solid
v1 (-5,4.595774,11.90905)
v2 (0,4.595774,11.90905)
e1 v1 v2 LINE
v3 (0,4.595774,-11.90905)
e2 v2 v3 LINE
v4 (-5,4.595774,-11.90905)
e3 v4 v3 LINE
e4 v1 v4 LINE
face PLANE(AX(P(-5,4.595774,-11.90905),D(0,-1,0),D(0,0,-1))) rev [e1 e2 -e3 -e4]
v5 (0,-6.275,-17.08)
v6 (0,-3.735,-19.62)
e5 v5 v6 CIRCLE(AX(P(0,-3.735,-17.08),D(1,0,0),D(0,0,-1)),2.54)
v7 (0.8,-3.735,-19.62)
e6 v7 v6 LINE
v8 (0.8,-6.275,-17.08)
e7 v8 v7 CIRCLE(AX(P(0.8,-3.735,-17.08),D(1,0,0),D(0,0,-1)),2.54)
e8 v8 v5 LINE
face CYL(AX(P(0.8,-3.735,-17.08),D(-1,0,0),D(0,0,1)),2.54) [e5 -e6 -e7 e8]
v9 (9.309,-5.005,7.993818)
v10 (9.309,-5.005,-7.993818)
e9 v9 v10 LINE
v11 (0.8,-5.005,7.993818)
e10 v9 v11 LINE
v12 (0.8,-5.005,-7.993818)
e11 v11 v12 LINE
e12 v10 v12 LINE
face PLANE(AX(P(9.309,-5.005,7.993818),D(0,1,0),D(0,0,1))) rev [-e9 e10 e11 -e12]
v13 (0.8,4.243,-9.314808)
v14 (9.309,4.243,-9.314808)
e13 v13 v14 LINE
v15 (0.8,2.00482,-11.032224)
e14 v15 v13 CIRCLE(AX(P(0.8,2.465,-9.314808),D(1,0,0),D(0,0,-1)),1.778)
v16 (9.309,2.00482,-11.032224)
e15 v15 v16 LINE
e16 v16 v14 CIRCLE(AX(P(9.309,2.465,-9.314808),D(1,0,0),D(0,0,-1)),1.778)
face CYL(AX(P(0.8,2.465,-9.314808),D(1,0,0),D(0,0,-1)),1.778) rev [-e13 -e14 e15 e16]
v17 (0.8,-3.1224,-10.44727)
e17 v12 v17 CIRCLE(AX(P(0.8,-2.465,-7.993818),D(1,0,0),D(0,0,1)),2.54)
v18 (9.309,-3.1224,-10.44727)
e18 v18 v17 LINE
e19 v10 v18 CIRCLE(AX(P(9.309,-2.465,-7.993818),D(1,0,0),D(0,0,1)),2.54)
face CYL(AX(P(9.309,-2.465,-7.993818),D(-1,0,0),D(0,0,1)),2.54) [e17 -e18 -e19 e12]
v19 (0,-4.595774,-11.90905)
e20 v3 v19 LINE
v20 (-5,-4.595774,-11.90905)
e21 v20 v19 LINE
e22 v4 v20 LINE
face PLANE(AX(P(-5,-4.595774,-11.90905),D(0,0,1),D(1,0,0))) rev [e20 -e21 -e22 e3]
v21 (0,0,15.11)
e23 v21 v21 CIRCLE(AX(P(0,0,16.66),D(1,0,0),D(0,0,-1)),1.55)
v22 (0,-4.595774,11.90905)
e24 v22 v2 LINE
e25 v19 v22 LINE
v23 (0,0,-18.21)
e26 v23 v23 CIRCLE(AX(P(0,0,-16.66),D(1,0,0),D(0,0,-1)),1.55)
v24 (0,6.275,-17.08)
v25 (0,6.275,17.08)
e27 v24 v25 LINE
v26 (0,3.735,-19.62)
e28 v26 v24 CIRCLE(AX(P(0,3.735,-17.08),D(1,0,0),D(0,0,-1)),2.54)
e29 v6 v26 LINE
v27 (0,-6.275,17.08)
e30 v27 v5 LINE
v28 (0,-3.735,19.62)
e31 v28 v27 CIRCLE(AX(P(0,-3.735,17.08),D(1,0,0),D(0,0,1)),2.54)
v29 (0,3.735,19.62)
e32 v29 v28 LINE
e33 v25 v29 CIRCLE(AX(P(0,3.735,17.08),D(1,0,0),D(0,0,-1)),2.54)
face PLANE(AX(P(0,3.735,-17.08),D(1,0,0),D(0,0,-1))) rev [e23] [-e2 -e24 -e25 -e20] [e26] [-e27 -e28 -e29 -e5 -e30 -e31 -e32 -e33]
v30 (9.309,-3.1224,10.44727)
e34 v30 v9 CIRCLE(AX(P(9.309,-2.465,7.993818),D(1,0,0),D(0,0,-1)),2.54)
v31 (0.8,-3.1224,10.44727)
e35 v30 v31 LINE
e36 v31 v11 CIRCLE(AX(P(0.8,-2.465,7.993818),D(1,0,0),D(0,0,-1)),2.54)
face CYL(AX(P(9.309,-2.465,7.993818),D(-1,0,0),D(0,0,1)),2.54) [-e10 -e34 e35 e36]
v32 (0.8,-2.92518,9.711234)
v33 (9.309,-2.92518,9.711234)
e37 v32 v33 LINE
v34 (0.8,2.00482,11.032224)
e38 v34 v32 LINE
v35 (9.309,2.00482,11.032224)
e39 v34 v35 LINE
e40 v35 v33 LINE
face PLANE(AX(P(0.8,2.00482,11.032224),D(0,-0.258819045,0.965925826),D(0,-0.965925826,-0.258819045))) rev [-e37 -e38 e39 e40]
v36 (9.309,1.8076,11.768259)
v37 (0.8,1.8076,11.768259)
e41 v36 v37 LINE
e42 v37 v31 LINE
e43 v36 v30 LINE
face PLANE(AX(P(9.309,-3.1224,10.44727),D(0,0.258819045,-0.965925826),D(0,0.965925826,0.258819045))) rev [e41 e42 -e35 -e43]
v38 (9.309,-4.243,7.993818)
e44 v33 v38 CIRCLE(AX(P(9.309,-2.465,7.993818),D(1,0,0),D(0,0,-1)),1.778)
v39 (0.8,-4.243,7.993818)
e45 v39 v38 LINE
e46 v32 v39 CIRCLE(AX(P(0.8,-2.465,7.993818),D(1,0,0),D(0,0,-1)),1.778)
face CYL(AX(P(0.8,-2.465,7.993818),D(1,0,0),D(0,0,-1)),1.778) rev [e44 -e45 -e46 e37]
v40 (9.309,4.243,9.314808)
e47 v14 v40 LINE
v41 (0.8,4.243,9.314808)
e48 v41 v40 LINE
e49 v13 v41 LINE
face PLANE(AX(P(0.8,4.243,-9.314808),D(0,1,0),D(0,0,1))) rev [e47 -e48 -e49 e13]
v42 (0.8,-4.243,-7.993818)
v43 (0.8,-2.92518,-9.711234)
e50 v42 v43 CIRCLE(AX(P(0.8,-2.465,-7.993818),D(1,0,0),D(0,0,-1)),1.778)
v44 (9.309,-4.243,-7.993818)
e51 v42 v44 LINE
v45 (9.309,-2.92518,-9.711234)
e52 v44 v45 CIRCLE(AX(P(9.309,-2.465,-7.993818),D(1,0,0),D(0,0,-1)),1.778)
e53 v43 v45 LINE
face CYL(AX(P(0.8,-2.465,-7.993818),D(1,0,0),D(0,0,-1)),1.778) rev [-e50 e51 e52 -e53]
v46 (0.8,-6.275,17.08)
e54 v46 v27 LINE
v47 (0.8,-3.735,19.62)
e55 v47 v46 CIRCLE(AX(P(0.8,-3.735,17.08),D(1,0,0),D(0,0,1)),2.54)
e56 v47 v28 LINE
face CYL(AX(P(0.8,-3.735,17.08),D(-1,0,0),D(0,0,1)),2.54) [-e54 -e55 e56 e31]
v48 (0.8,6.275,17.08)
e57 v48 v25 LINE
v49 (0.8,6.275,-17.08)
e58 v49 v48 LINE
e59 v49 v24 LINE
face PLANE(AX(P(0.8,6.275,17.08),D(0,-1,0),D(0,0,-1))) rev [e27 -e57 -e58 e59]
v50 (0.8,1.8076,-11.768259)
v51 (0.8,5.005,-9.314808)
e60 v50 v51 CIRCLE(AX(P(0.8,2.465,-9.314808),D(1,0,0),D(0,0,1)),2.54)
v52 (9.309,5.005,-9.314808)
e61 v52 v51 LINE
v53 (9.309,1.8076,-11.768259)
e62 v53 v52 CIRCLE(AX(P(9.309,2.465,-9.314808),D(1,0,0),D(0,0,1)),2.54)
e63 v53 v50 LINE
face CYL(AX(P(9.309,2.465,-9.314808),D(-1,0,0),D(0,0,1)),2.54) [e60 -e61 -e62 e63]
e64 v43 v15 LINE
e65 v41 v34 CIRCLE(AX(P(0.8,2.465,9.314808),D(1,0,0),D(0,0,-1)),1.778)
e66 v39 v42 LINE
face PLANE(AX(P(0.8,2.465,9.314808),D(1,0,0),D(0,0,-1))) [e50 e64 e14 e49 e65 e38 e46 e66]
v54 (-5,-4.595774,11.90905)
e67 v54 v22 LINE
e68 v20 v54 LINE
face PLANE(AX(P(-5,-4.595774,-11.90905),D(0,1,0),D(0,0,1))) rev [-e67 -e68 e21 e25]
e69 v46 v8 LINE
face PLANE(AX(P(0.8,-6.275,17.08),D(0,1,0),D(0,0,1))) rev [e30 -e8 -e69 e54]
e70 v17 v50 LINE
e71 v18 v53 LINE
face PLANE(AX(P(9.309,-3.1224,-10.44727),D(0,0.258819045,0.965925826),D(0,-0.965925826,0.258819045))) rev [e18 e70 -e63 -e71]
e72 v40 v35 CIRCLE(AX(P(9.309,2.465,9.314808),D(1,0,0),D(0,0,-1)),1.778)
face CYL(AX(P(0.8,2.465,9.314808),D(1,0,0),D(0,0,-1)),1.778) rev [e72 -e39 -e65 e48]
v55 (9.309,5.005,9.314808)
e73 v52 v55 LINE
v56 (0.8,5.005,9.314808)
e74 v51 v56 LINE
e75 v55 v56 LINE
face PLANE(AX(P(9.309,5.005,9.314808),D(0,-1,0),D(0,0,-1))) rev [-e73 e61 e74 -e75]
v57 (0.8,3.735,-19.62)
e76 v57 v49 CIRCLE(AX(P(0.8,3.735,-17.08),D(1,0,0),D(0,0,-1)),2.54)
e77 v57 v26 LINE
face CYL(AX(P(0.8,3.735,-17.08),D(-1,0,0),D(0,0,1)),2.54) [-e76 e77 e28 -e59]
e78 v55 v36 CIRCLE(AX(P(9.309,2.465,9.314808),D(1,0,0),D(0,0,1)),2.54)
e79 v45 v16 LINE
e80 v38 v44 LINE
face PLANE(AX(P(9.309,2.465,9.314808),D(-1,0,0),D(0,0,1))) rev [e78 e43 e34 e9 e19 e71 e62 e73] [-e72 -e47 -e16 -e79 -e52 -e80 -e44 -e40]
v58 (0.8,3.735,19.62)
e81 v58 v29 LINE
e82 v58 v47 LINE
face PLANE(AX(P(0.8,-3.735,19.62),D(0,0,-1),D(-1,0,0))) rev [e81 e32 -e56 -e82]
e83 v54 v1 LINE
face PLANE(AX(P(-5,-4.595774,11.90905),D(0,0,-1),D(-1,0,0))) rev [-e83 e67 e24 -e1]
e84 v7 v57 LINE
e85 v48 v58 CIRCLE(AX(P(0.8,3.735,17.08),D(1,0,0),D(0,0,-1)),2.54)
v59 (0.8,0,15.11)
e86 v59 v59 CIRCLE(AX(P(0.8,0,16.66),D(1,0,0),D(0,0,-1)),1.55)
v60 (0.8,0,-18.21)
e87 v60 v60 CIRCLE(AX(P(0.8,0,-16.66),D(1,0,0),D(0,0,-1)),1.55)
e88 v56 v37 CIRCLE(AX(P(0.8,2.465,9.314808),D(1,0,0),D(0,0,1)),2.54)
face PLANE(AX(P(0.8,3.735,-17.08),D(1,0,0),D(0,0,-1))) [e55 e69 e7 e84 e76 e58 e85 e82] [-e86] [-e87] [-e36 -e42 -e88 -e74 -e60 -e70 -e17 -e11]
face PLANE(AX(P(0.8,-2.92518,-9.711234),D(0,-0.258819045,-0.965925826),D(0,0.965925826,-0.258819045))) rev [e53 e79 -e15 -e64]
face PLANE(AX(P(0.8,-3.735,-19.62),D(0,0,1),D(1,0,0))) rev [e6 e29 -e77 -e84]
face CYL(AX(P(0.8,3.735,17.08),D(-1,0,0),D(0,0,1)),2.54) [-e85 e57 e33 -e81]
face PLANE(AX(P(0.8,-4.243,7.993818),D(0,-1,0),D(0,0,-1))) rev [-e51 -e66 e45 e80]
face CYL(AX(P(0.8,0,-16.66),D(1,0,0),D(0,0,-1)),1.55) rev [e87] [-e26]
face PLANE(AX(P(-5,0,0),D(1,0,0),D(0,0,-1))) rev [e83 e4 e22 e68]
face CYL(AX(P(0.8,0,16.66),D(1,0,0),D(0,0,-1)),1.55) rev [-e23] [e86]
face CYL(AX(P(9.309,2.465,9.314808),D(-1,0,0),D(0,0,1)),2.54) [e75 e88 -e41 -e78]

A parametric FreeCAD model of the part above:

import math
import FreeCAD as App
import Part
import Sketcher
Q = App.Units.Quantity

doc = App.newDocument("Part")
body = doc.addObject("PartDesign::Body", "Body")

# Sketch on YZ plane
sketch1 = body.newObject("Sketcher::SketchObject", "Sketch")
sketch1.AttachmentSupport = (doc.getObject("YZ_Plane"), [""])
sketch1.MapMode = "FlatFace"
sketch1.addGeometry(Part.LineSegment(App.Vector(-6.275, 17.08, 0), App.Vector(-6.275, -17.08, 0)), False)
sketch1.addGeometry(Part.ArcOfCircle(Part.Circle(App.Vector(-3.735, -17.08, 0), App.Vector(0, 0, 1), 2.54), math.radians(-180), math.radians(-90)), False)
sketch1.addGeometry(Part.LineSegment(App.Vector(-3.735, -19.62, 0), App.Vector(3.735, -19.62, 0)), False)
sketch1.addGeometry(Part.ArcOfCircle(Part.Circle(App.Vector(3.735, -17.08, 0), App.Vector(0, 0, 1), 2.54), math.radians(-90), math.radians(0)), False)
sketch1.addGeometry(Part.LineSegment(App.Vector(6.275, -17.08, 0), App.Vector(6.275, 17.08, 0)), False)
sketch1.addGeometry(Part.ArcOfCircle(Part.Circle(App.Vector(3.735, 17.08, 0), App.Vector(0, 0, 1), 2.54), math.radians(0), math.radians(90)), False)
sketch1.addGeometry(Part.LineSegment(App.Vector(3.735, 19.62, 0), App.Vector(-3.735, 19.62, 0)), False)
sketch1.addGeometry(Part.ArcOfCircle(Part.Circle(App.Vector(-3.735, 17.08, 0), App.Vector(0, 0, 1), 2.54), math.radians(90), math.radians(180)), False)
sketch1.addConstraint(Sketcher.Constraint("Tangent", 0, 2, 1, 1))
sketch1.addConstraint(Sketcher.Constraint("Tangent", 1, 2, 2, 1))
sketch1.addConstraint(Sketcher.Constraint("Tangent", 2, 2, 3, 1))
sketch1.addConstraint(Sketcher.Constraint("Tangent", 3, 2, 4, 1))
sketch1.addConstraint(Sketcher.Constraint("Tangent", 4, 2, 5, 1))
sketch1.addConstraint(Sketcher.Constraint("Tangent", 5, 2, 6, 1))
sketch1.addConstraint(Sketcher.Constraint("Tangent", 6, 2, 7, 1))
sketch1.addConstraint(Sketcher.Constraint("Tangent", 7, 2, 0, 1))
sketch1.addConstraint(Sketcher.Constraint("Vertical", 0))
sketch1.addConstraint(Sketcher.Constraint("Horizontal", 2))
sketch1.addConstraint(Sketcher.Constraint("Vertical", 4))
sketch1.addConstraint(Sketcher.Constraint("Horizontal", 6))
sketch1.addConstraint(Sketcher.Constraint("Equal", 1, 3))
sketch1.addConstraint(Sketcher.Constraint("Equal", 3, 5))
sketch1.addConstraint(Sketcher.Constraint("Equal", 5, 7))
sketch1.addConstraint(Sketcher.Constraint("Symmetric", 1, 3, 5, 3, -1, 1))
sketch1.addConstraint(Sketcher.Constraint("Radius", 1, Q("2.54 mm")))
sketch1.addConstraint(Sketcher.Constraint("DistanceX", 2, 1, 2, 2, Q("7.47 mm")))
sketch1.addConstraint(Sketcher.Constraint("DistanceY", 0, 2, 0, 1, Q("34.16 mm")))
pad1 = body.newObject("PartDesign::Pad", "Pad")
pad1.Profile = sketch1
pad1.Length = 0.8

# Sketch on YZ plane
sketch2 = body.newObject("Sketcher::SketchObject", "Sketch001")
sketch2.AttachmentSupport = (doc.getObject("YZ_Plane"), [""])
sketch2.MapMode = "FlatFace"
sketch2.AttachmentOffset = App.Placement(App.Vector(0, 0, 0.8), App.Rotation())
sketch2.addGeometry(Part.LineSegment(App.Vector(5.005, -9.314808, 0), App.Vector(5.005, 9.314808, 0)), False)
sketch2.addGeometry(Part.ArcOfCircle(Part.Circle(App.Vector(2.465, 9.314808, 0), App.Vector(0, 0, 1), 2.54), math.radians(0), math.radians(105)), False)
sketch2.addGeometry(Part.LineSegment(App.Vector(1.8076, 11.768259, 0), App.Vector(-3.1224, 10.44727, 0)), False)
sketch2.addGeometry(Part.ArcOfCircle(Part.Circle(App.Vector(-2.465, 7.993818, 0), App.Vector(0, 0, 1), 2.54), math.radians(105), math.radians(180)), False)
sketch2.addGeometry(Part.LineSegment(App.Vector(-5.005, 7.993818, 0), App.Vector(-5.005, -7.993818, 0)), False)
sketch2.addGeometry(Part.ArcOfCircle(Part.Circle(App.Vector(-2.465, -7.993818, 0), App.Vector(0, 0, 1), 2.54), math.radians(180), math.radians(255)), False)
sketch2.addGeometry(Part.LineSegment(App.Vector(-3.1224, -10.44727, 0), App.Vector(1.8076, -11.768259, 0)), False)
sketch2.addGeometry(Part.ArcOfCircle(Part.Circle(App.Vector(2.465, -9.314808, 0), App.Vector(0, 0, 1), 2.54), math.radians(-105), math.radians(0)), False)
sketch2.addConstraint(Sketcher.Constraint("Tangent", 0, 2, 1, 1))
sketch2.addConstraint(Sketcher.Constraint("Tangent", 1, 2, 2, 1))
sketch2.addConstraint(Sketcher.Constraint("Tangent", 2, 2, 3, 1))
sketch2.addConstraint(Sketcher.Constraint("Tangent", 3, 2, 4, 1))
sketch2.addConstraint(Sketcher.Constraint("Tangent", 4, 2, 5, 1))
sketch2.addConstraint(Sketcher.Constraint("Tangent", 5, 2, 6, 1))
sketch2.addConstraint(Sketcher.Constraint("Tangent", 6, 2, 7, 1))
sketch2.addConstraint(Sketcher.Constraint("Tangent", 7, 2, 0, 1))
sketch2.addConstraint(Sketcher.Constraint("Vertical", 0))
sketch2.addConstraint(Sketcher.Constraint("Vertical", 4))
sketch2.addConstraint(Sketcher.Constraint("Equal", 1, 3))
sketch2.addConstraint(Sketcher.Constraint("Equal", 3, 5))
sketch2.addConstraint(Sketcher.Constraint("Equal", 5, 7))
sketch2.addConstraint(Sketcher.Constraint("Symmetric", 2, 2, 5, 2, -1))
sketch2.addConstraint(Sketcher.Constraint("Angle", 2, Q("-165 deg")))
sketch2.addConstraint(Sketcher.Constraint("Radius", 1, Q("2.54 mm")))
sketch2.addConstraint(Sketcher.Constraint("DistanceX", 3, 3, 1, 3, Q("4.93 mm")))
sketch2.addConstraint(Sketcher.Constraint("DistanceX", -1, 1, 1, 3, Q("2.465 mm")))
sketch2.addConstraint(Sketcher.Constraint("DistanceY", 0, 1, 0, 2, Q("18.629615 mm")))
pad2 = body.newObject("PartDesign::Pad", "Pad001")
pad2.Profile = sketch2
pad2.Length = 8.509

# Sketch on YZ plane
sketch3 = body.newObject("Sketcher::SketchObject", "Sketch002")
sketch3.AttachmentSupport = (doc.getObject("YZ_Plane"), [""])
sketch3.MapMode = "FlatFace"
sketch3.AttachmentOffset = App.Placement(App.Vector(0, 0, 9.309), App.Rotation())
sketch3.addGeometry(Part.LineSegment(App.Vector(2.00482, 11.032224, 0), App.Vector(-2.92518, 9.711234, 0)), False)
sketch3.addGeometry(Part.ArcOfCircle(Part.Circle(App.Vector(-2.465, 7.993818, 0), App.Vector(0, 0, 1), 1.778), math.radians(105), math.radians(180)), False)
sketch3.addGeometry(Part.LineSegment(App.Vector(-4.243, 7.993818, 0), App.Vector(-4.243, -7.993818, 0)), False)
sketch3.addGeometry(Part.ArcOfCircle(Part.Circle(App.Vector(-2.465, -7.993818, 0), App.Vector(0, 0, 1), 1.778), math.radians(180), math.radians(255)), False)
sketch3.addGeometry(Part.LineSegment(App.Vector(-2.92518, -9.711234, 0), App.Vector(2.00482, -11.032224, 0)), False)
sketch3.addGeometry(Part.ArcOfCircle(Part.Circle(App.Vector(2.465, -9.314808, 0), App.Vector(0, 0, 1), 1.778), math.radians(-105), math.radians(0)), False)
sketch3.addGeometry(Part.LineSegment(App.Vector(4.243, -9.314808, 0), App.Vector(4.243, 9.314808, 0)), False)
sketch3.addGeometry(Part.ArcOfCircle(Part.Circle(App.Vector(2.465, 9.314808, 0), App.Vector(0, 0, 1), 1.778), math.radians(0), math.radians(105)), False)
sketch3.addConstraint(Sketcher.Constraint("Tangent", 0, 2, 1, 1))
sketch3.addConstraint(Sketcher.Constraint("Tangent", 1, 2, 2, 1))
sketch3.addConstraint(Sketcher.Constraint("Tangent", 2, 2, 3, 1))
sketch3.addConstraint(Sketcher.Constraint("Tangent", 3, 2, 4, 1))
sketch3.addConstraint(Sketcher.Constraint("Tangent", 4, 2, 5, 1))
sketch3.addConstraint(Sketcher.Constraint("Tangent", 5, 2, 6, 1))
sketch3.addConstraint(Sketcher.Constraint("Tangent", 6, 2, 7, 1))
sketch3.addConstraint(Sketcher.Constraint("Tangent", 7, 2, 0, 1))
sketch3.addConstraint(Sketcher.Constraint("Vertical", 2))
sketch3.addConstraint(Sketcher.Constraint("Vertical", 6))
sketch3.addConstraint(Sketcher.Constraint("Equal", 1, 3))
sketch3.addConstraint(Sketcher.Constraint("Equal", 3, 5))
sketch3.addConstraint(Sketcher.Constraint("Equal", 5, 7))
sketch3.addConstraint(Sketcher.Constraint("Symmetric", 0, 2, 3, 2, -1))
sketch3.addConstraint(Sketcher.Constraint("Angle", 0, Q("-165 deg")))
sketch3.addConstraint(Sketcher.Constraint("Radius", 1, Q("1.778 mm")))
sketch3.addConstraint(Sketcher.Constraint("DistanceX", 3, 3, 5, 3, Q("4.93 mm")))
sketch3.addConstraint(Sketcher.Constraint("DistanceX", 1, 3, -1, 1, Q("2.465 mm")))
sketch3.addConstraint(Sketcher.Constraint("DistanceY", 2, 2, 2, 1, Q("15.987636 mm")))
pocket1 = body.newObject("PartDesign::Pocket", "Pocket")
pocket1.Profile = sketch3
pocket1.Length = 8.509

# Sketch on YZ plane
sketch4 = body.newObject("Sketcher::SketchObject", "Sketch003")
sketch4.AttachmentSupport = (doc.getObject("YZ_Plane"), [""])
sketch4.MapMode = "FlatFace"
sketch4.AttachmentOffset = App.Placement(App.Vector(0, 0, 0.8), App.Rotation())
sketch4.addGeometry(Part.Circle(App.Vector(0, 16.66, 0), App.Vector(0, 0, 1), 1.55), False)
sketch4.addGeometry(Part.Circle(App.Vector(0, -16.66, 0), App.Vector(0, 0, 1), 1.55), False)
sketch4.addConstraint(Sketcher.Constraint("Equal", 0, 1))
sketch4.addConstraint(Sketcher.Constraint("Symmetric", 0, 3, 1, 3, -1, 1))
sketch4.addConstraint(Sketcher.Constraint("PointOnObject", 0, 3, -2))
sketch4.addConstraint(Sketcher.Constraint("Diameter", 0, Q("3.1 mm")))
sketch4.addConstraint(Sketcher.Constraint("DistanceY", -1, 1, 0, 3, Q("16.66 mm")))
doc.recompute()
hole = body.newObject("PartDesign::Hole", "Hole")
hole.Profile = sketch4
hole.ThreadType = "None"
hole.Diameter = 3.1
hole.DepthType = "ThroughAll"

# Sketch on YZ plane
sketch5 = body.newObject("Sketcher::SketchObject", "Sketch004")
sketch5.AttachmentSupport = (doc.getObject("YZ_Plane"), [""])
sketch5.MapMode = "FlatFace"
sketch5.addGeometry(Part.LineSegment(App.Vector(4.595774, -11.90905, 0), App.Vector(-4.595774, -11.90905, 0)), False)
sketch5.addGeometry(Part.LineSegment(App.Vector(-4.595774, -11.90905, 0), App.Vector(-4.595774, 11.90905, 0)), False)
sketch5.addGeometry(Part.LineSegment(App.Vector(-4.595774, 11.90905, 0), App.Vector(4.595774, 11.90905, 0)), False)
sketch5.addGeometry(Part.LineSegment(App.Vector(4.595774, 11.90905, 0), App.Vector(4.595774, -11.90905, 0)), False)
sketch5.addConstraint(Sketcher.Constraint("Coincident", 0, 2, 1, 1))
sketch5.addConstraint(Sketcher.Constraint("Coincident", 1, 2, 2, 1))
sketch5.addConstraint(Sketcher.Constraint("Coincident", 2, 2, 3, 1))
sketch5.addConstraint(Sketcher.Constraint("Coincident", 3, 2, 0, 1))
sketch5.addConstraint(Sketcher.Constraint("Horizontal", 0))
sketch5.addConstraint(Sketcher.Constraint("Vertical", 1))
sketch5.addConstraint(Sketcher.Constraint("Horizontal", 2))
sketch5.addConstraint(Sketcher.Constraint("Vertical", 3))
sketch5.addConstraint(Sketcher.Constraint("Symmetric", 0, 2, 2, 2, -1, 1))
sketch5.addConstraint(Sketcher.Constraint("DistanceY", 1, 1, 1, 2, Q("23.818099 mm")))
sketch5.addConstraint(Sketcher.Constraint("DistanceX", 0, 2, 0, 1, Q("9.191548 mm")))
pad3 = body.newObject("PartDesign::Pad", "Pad002")
pad3.Profile = sketch5
pad3.Length = 5
pad3.Reversed = True

doc.recompute()
